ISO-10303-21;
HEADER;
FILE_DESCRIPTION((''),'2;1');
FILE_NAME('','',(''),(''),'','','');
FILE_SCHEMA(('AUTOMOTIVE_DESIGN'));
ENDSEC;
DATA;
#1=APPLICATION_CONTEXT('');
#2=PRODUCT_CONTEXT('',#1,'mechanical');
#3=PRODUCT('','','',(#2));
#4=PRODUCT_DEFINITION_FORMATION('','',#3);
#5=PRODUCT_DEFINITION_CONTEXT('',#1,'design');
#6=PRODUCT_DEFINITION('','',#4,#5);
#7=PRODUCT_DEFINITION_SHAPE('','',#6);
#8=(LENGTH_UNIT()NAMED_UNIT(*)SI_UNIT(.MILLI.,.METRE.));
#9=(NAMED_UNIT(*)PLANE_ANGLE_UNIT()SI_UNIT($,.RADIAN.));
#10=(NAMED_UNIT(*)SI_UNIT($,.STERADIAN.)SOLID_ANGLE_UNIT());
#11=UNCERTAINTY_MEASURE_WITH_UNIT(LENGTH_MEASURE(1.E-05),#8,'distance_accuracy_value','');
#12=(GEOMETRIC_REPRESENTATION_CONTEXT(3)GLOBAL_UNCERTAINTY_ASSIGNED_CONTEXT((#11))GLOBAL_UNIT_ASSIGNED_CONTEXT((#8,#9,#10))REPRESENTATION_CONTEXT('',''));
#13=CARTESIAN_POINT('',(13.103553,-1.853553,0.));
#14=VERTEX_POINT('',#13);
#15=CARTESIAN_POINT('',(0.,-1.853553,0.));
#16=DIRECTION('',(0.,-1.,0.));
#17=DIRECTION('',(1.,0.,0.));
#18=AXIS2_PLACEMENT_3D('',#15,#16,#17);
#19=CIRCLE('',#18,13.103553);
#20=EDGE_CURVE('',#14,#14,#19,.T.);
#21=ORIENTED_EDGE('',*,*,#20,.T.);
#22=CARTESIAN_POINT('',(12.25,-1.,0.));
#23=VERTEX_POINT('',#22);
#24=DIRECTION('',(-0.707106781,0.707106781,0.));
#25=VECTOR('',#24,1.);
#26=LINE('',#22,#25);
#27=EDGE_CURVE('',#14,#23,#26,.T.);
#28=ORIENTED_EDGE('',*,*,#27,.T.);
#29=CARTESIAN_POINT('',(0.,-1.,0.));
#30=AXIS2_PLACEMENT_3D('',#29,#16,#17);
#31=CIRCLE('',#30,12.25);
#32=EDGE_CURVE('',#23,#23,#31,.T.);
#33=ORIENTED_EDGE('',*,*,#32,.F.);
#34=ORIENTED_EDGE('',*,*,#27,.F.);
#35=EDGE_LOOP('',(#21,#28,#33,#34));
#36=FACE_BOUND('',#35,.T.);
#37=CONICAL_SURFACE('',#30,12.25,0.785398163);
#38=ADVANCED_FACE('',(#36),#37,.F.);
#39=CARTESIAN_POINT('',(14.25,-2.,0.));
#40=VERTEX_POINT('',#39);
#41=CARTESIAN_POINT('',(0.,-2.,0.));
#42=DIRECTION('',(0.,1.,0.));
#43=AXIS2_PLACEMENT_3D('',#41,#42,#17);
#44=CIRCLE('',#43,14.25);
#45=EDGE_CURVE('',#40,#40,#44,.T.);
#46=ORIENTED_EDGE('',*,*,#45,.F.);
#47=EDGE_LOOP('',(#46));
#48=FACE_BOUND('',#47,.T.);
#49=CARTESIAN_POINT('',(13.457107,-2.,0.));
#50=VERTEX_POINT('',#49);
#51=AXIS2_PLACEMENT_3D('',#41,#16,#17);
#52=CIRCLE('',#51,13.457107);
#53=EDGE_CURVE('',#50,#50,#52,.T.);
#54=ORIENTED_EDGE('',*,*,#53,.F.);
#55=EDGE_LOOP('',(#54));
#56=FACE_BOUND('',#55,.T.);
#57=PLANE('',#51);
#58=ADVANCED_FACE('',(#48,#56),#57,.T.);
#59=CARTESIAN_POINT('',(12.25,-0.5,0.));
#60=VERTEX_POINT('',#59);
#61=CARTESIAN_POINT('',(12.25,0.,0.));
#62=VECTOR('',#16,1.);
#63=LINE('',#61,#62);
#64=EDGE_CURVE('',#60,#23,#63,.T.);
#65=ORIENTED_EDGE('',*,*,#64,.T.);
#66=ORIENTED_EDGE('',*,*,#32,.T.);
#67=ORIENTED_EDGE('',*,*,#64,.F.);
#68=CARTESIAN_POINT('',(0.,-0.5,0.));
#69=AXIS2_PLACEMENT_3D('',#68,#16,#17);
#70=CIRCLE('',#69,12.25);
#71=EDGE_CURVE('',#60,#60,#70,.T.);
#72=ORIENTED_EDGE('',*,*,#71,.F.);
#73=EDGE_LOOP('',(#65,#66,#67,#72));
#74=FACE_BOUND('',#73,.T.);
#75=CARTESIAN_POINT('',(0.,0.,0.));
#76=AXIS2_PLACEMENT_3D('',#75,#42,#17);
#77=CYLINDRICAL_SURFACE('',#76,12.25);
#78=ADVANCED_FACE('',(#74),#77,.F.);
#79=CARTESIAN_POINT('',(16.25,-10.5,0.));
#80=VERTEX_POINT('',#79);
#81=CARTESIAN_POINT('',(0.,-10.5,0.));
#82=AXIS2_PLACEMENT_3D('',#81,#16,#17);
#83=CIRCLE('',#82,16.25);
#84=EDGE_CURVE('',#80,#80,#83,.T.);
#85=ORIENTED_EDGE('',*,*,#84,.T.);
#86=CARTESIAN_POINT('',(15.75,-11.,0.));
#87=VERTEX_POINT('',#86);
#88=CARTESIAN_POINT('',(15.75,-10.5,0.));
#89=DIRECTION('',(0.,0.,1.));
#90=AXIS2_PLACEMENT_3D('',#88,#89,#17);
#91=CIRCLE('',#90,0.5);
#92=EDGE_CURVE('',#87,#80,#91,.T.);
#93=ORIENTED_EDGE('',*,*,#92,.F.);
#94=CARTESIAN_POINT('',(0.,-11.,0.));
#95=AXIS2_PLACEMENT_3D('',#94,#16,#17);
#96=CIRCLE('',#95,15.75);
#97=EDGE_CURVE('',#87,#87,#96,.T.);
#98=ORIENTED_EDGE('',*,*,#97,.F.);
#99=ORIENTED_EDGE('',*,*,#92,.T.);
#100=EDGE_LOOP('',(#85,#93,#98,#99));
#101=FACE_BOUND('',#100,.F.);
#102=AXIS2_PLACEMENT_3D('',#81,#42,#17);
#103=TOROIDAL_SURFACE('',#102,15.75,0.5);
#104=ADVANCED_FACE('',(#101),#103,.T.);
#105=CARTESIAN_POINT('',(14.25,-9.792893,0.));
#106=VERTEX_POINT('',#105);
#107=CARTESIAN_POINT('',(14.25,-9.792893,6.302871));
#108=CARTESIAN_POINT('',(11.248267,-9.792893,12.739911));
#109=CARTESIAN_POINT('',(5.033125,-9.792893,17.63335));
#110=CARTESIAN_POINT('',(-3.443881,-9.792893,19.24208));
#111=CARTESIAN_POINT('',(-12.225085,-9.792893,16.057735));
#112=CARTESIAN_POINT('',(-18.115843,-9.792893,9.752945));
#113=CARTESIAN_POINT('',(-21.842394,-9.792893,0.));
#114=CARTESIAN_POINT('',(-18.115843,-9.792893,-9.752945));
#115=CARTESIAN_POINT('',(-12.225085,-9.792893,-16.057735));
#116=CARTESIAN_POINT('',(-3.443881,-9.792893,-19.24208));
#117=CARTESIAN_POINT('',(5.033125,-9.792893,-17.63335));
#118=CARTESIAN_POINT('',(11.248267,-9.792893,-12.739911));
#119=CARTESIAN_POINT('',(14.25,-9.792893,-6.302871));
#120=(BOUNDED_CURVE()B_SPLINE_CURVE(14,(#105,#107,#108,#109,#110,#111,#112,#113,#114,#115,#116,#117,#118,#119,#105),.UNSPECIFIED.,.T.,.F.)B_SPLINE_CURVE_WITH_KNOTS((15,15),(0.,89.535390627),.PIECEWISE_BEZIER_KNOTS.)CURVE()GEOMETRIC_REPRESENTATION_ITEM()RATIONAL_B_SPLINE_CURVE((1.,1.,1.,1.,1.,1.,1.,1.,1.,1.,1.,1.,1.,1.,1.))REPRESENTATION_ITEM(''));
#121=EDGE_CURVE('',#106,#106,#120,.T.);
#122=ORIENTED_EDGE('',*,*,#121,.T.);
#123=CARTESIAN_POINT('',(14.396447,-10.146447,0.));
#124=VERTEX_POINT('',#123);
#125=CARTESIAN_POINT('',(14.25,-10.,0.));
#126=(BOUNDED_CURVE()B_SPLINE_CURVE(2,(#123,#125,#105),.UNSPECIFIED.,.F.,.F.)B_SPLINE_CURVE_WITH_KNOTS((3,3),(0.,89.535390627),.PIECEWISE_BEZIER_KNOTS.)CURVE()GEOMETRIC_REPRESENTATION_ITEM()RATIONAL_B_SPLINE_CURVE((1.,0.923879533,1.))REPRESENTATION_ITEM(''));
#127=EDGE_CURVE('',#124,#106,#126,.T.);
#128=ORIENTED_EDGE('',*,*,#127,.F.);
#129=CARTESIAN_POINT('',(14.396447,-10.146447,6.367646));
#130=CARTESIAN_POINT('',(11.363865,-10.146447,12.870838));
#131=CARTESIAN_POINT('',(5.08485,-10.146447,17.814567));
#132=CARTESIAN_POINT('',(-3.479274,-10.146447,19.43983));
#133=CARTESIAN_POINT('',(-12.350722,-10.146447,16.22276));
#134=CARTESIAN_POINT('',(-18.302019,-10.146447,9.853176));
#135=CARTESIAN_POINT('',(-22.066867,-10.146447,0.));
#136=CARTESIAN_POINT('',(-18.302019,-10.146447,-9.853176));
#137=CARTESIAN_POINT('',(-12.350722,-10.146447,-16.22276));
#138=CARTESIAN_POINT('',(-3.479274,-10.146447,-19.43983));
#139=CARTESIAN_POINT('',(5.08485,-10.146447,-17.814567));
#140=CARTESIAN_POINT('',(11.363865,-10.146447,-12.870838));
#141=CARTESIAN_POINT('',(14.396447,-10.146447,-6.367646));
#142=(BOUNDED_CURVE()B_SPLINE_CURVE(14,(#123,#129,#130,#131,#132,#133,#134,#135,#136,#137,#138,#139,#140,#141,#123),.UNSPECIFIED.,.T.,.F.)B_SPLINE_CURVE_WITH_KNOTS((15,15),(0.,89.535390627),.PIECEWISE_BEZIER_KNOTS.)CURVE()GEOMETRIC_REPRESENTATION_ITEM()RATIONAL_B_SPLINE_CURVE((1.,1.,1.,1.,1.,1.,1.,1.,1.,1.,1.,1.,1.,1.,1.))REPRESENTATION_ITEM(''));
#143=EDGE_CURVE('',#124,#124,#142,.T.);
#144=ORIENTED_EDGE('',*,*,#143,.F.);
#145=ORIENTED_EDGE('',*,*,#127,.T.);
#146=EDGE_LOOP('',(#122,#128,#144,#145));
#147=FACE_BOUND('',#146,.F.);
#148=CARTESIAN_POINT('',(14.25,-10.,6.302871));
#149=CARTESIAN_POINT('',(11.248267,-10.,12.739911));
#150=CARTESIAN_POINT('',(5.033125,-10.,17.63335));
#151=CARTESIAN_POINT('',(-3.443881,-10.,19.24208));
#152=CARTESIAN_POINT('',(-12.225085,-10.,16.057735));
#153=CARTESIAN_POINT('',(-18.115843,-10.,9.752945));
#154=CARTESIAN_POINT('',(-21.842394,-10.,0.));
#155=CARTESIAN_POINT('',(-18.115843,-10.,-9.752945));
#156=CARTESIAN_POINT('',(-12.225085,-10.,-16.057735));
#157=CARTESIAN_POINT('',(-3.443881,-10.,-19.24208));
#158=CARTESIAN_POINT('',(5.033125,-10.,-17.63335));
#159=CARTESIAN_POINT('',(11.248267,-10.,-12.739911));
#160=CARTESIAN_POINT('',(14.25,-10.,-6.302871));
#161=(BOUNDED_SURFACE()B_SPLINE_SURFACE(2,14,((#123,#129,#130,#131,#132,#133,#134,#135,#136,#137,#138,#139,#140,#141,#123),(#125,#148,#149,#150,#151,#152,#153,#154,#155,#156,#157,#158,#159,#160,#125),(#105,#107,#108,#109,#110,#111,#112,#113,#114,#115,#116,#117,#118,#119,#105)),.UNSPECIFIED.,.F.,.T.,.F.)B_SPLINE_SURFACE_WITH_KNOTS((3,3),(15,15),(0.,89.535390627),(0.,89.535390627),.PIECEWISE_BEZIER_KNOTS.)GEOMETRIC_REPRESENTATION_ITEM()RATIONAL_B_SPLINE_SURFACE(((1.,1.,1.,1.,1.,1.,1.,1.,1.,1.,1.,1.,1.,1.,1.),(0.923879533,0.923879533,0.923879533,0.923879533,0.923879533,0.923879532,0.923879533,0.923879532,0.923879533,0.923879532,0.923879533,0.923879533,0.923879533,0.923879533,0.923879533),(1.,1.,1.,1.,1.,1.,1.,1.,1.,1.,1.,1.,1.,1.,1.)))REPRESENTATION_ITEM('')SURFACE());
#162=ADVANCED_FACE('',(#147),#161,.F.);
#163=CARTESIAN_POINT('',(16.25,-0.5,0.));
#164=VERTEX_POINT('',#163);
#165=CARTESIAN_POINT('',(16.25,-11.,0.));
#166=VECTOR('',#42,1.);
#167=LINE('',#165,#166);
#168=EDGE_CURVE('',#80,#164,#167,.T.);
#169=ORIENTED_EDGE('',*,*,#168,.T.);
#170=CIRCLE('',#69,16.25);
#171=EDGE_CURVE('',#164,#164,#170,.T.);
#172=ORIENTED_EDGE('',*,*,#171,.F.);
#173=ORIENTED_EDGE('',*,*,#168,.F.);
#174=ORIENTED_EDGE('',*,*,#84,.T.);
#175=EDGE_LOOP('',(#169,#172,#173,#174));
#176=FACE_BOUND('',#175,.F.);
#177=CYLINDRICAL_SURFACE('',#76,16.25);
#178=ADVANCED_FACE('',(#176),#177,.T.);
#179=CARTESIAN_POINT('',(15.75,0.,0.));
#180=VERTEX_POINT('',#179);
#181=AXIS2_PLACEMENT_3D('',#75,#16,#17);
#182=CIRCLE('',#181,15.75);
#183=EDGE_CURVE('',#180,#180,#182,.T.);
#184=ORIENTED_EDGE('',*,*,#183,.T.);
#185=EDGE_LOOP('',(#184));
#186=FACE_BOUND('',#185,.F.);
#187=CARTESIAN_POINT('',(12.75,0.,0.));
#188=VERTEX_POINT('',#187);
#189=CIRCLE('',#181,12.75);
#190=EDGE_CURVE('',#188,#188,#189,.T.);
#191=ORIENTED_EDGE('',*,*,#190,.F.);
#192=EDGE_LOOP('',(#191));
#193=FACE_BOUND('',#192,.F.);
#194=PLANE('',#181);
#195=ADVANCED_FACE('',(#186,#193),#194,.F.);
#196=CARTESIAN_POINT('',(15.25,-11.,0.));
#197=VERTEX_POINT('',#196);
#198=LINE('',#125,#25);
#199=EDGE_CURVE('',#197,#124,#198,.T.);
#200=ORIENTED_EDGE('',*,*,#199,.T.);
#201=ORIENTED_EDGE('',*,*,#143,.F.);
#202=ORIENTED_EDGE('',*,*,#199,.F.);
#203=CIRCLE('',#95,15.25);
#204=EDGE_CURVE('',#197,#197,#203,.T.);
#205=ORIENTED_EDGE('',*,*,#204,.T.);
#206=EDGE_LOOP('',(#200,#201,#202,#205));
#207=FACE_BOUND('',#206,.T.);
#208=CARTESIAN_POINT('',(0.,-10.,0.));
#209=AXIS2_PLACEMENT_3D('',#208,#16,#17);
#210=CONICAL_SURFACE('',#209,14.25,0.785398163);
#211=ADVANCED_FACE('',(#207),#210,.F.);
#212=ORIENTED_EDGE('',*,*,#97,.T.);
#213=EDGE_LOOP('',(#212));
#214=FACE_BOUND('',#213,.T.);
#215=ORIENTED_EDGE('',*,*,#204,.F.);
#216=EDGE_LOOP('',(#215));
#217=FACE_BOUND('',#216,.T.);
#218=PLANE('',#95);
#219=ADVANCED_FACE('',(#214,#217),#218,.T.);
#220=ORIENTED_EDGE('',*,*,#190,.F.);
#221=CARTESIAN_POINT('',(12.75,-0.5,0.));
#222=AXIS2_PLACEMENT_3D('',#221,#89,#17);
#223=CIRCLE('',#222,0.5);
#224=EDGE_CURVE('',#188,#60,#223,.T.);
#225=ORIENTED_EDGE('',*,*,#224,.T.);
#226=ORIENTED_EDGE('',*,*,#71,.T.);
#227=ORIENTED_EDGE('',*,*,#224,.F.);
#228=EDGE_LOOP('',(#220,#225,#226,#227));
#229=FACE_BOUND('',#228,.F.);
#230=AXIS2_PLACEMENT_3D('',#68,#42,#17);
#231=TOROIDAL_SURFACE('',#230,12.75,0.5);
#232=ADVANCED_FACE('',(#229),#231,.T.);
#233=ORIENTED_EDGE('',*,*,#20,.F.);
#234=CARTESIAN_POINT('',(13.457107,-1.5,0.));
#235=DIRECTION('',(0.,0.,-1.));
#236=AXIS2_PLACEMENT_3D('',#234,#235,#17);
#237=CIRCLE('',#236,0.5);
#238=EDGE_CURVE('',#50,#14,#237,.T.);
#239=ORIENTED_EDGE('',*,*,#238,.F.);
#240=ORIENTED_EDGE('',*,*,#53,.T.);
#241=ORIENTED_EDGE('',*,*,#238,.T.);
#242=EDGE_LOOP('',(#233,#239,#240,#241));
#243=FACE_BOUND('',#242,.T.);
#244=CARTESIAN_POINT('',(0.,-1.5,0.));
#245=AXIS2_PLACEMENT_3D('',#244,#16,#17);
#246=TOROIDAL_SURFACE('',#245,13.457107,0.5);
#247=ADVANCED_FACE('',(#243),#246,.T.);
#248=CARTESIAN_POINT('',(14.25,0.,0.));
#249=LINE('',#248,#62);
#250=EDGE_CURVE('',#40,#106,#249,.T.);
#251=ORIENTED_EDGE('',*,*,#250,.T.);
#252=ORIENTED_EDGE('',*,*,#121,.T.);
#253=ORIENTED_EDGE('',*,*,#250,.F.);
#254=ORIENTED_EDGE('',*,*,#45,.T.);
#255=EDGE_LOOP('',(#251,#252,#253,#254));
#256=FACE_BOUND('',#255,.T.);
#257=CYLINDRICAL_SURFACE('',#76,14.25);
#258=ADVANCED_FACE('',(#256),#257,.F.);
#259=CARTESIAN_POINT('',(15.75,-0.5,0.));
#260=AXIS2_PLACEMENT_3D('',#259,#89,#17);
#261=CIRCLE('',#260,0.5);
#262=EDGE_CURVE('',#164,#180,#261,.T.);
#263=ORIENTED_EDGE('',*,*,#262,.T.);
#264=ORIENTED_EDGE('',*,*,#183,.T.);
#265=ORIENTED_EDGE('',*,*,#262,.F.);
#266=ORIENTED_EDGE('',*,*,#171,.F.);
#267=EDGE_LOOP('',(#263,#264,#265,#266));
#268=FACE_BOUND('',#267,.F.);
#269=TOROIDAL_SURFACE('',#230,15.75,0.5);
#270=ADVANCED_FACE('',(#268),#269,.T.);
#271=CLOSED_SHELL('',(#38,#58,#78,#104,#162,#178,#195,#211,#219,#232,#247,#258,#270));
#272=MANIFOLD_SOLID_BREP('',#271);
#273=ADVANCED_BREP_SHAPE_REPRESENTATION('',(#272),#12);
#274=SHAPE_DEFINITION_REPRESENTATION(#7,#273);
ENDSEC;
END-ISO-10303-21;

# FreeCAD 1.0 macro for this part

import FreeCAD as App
import Part
import Sketcher

V = App.Vector


def edges_at(feature, points):
    """Names of the edges that pass closest to the given points."""
    edges = feature.Shape.Edges
    near = lambda p: min(range(len(edges)), key=lambda i: edges[i].distToShape(Part.Vertex(*p))[0])
    return sorted({f"Edge{near(p) + 1}" for p in points})

doc = App.newDocument("Part")
params = doc.addObject("Spreadsheet::Sheet", "Params")
for row, (alias, value) in enumerate([
    ("sketch1_diameter", "32.5 mm"),
    ("sketch1_diameter2", "24.5 mm"),
    ("pad1_length", "2 mm"),
    ("sketch2_diameter", "32.5 mm"),
    ("sketch2_diameter2", "28.5 mm"),
    ("pad2_length", "11 mm"),
    ("chamfer_size", "1 mm"),
    ("fillet_radius", "0.5 mm"),
], start=1):
    params.set(f"A{row}", alias)
    params.set(f"B{row}", "=" + value)
    params.setAlias(f"B{row}", alias)

body = doc.addObject("PartDesign::Body", "Body")

sketch1 = doc.addObject("Sketcher::SketchObject", "Sketch")
body.addObject(sketch1)
sketch1.AttachmentSupport = (doc.XZ_Plane, [""])
sketch1.MapMode = "FlatFace"
sketch1.addGeometry([
    Part.Circle(V(0, 0, 0), V(0, 0, 1), 16),
    Part.Circle(V(0, 0, 0), V(0, 0, 1), 12),
], False)
sketch1.addConstraint([
    Sketcher.Constraint("Coincident", 0, 3, -1, 1),
    Sketcher.Constraint("Coincident", 1, 3, -1, 1),
    Sketcher.Constraint("Diameter", 0, 32.5),
    Sketcher.Constraint("Diameter", 1, 24.5),
])
sketch1.setExpression("Constraints[2]", "Params.sketch1_diameter")
sketch1.setExpression("Constraints[3]", "Params.sketch1_diameter2")
pad1 = doc.addObject("PartDesign::Pad", "Pad")
body.addObject(pad1)
pad1.Profile = sketch1
pad1.setExpression("Length", "Params.pad1_length")

sketch2 = doc.addObject("Sketcher::SketchObject", "Sketch001")
body.addObject(sketch2)
sketch2.AttachmentSupport = (doc.XZ_Plane, [""])
sketch2.MapMode = "FlatFace"
sketch2.addGeometry([
    Part.Circle(V(0, 0, 0), V(0, 0, 1), 16),
    Part.Circle(V(0, 0, 0), V(0, 0, 1), 14),
], False)
sketch2.addConstraint([
    Sketcher.Constraint("Coincident", 0, 3, -1, 1),
    Sketcher.Constraint("Coincident", 1, 3, -1, 1),
    Sketcher.Constraint("Diameter", 0, 32.5),
    Sketcher.Constraint("Diameter", 1, 28.5),
])
sketch2.setExpression("Constraints[2]", "Params.sketch2_diameter")
sketch2.setExpression("Constraints[3]", "Params.sketch2_diameter2")
pad2 = doc.addObject("PartDesign::Pad", "Pad001")
body.addObject(pad2)
pad2.Profile = sketch2
pad2.setExpression("Length", "Params.pad2_length")
doc.recompute()

chamfer = doc.addObject("PartDesign::Chamfer", "Chamfer")
body.addObject(chamfer)
chamfer.Base = (pad2, edges_at(pad2, [(-14.25, -11, 0), (-12.25, -2, 0)]))
chamfer.setExpression("Size", "Params.chamfer_size")
doc.recompute()

fillet = doc.addObject("PartDesign::Fillet", "Fillet")
body.addObject(fillet)
fillet.Base = (chamfer, edges_at(chamfer, [
    (-16.25, 0, 0),
    (16.25, -5.5, 0),
    (-16.25, -11, 0),
    (-12.25, 0, 0),
    (-14.25, -10, 0),
    (-13.25, -2, 0),
]))
fillet.setExpression("Radius", "Params.fillet_radius")

doc.recompute()
